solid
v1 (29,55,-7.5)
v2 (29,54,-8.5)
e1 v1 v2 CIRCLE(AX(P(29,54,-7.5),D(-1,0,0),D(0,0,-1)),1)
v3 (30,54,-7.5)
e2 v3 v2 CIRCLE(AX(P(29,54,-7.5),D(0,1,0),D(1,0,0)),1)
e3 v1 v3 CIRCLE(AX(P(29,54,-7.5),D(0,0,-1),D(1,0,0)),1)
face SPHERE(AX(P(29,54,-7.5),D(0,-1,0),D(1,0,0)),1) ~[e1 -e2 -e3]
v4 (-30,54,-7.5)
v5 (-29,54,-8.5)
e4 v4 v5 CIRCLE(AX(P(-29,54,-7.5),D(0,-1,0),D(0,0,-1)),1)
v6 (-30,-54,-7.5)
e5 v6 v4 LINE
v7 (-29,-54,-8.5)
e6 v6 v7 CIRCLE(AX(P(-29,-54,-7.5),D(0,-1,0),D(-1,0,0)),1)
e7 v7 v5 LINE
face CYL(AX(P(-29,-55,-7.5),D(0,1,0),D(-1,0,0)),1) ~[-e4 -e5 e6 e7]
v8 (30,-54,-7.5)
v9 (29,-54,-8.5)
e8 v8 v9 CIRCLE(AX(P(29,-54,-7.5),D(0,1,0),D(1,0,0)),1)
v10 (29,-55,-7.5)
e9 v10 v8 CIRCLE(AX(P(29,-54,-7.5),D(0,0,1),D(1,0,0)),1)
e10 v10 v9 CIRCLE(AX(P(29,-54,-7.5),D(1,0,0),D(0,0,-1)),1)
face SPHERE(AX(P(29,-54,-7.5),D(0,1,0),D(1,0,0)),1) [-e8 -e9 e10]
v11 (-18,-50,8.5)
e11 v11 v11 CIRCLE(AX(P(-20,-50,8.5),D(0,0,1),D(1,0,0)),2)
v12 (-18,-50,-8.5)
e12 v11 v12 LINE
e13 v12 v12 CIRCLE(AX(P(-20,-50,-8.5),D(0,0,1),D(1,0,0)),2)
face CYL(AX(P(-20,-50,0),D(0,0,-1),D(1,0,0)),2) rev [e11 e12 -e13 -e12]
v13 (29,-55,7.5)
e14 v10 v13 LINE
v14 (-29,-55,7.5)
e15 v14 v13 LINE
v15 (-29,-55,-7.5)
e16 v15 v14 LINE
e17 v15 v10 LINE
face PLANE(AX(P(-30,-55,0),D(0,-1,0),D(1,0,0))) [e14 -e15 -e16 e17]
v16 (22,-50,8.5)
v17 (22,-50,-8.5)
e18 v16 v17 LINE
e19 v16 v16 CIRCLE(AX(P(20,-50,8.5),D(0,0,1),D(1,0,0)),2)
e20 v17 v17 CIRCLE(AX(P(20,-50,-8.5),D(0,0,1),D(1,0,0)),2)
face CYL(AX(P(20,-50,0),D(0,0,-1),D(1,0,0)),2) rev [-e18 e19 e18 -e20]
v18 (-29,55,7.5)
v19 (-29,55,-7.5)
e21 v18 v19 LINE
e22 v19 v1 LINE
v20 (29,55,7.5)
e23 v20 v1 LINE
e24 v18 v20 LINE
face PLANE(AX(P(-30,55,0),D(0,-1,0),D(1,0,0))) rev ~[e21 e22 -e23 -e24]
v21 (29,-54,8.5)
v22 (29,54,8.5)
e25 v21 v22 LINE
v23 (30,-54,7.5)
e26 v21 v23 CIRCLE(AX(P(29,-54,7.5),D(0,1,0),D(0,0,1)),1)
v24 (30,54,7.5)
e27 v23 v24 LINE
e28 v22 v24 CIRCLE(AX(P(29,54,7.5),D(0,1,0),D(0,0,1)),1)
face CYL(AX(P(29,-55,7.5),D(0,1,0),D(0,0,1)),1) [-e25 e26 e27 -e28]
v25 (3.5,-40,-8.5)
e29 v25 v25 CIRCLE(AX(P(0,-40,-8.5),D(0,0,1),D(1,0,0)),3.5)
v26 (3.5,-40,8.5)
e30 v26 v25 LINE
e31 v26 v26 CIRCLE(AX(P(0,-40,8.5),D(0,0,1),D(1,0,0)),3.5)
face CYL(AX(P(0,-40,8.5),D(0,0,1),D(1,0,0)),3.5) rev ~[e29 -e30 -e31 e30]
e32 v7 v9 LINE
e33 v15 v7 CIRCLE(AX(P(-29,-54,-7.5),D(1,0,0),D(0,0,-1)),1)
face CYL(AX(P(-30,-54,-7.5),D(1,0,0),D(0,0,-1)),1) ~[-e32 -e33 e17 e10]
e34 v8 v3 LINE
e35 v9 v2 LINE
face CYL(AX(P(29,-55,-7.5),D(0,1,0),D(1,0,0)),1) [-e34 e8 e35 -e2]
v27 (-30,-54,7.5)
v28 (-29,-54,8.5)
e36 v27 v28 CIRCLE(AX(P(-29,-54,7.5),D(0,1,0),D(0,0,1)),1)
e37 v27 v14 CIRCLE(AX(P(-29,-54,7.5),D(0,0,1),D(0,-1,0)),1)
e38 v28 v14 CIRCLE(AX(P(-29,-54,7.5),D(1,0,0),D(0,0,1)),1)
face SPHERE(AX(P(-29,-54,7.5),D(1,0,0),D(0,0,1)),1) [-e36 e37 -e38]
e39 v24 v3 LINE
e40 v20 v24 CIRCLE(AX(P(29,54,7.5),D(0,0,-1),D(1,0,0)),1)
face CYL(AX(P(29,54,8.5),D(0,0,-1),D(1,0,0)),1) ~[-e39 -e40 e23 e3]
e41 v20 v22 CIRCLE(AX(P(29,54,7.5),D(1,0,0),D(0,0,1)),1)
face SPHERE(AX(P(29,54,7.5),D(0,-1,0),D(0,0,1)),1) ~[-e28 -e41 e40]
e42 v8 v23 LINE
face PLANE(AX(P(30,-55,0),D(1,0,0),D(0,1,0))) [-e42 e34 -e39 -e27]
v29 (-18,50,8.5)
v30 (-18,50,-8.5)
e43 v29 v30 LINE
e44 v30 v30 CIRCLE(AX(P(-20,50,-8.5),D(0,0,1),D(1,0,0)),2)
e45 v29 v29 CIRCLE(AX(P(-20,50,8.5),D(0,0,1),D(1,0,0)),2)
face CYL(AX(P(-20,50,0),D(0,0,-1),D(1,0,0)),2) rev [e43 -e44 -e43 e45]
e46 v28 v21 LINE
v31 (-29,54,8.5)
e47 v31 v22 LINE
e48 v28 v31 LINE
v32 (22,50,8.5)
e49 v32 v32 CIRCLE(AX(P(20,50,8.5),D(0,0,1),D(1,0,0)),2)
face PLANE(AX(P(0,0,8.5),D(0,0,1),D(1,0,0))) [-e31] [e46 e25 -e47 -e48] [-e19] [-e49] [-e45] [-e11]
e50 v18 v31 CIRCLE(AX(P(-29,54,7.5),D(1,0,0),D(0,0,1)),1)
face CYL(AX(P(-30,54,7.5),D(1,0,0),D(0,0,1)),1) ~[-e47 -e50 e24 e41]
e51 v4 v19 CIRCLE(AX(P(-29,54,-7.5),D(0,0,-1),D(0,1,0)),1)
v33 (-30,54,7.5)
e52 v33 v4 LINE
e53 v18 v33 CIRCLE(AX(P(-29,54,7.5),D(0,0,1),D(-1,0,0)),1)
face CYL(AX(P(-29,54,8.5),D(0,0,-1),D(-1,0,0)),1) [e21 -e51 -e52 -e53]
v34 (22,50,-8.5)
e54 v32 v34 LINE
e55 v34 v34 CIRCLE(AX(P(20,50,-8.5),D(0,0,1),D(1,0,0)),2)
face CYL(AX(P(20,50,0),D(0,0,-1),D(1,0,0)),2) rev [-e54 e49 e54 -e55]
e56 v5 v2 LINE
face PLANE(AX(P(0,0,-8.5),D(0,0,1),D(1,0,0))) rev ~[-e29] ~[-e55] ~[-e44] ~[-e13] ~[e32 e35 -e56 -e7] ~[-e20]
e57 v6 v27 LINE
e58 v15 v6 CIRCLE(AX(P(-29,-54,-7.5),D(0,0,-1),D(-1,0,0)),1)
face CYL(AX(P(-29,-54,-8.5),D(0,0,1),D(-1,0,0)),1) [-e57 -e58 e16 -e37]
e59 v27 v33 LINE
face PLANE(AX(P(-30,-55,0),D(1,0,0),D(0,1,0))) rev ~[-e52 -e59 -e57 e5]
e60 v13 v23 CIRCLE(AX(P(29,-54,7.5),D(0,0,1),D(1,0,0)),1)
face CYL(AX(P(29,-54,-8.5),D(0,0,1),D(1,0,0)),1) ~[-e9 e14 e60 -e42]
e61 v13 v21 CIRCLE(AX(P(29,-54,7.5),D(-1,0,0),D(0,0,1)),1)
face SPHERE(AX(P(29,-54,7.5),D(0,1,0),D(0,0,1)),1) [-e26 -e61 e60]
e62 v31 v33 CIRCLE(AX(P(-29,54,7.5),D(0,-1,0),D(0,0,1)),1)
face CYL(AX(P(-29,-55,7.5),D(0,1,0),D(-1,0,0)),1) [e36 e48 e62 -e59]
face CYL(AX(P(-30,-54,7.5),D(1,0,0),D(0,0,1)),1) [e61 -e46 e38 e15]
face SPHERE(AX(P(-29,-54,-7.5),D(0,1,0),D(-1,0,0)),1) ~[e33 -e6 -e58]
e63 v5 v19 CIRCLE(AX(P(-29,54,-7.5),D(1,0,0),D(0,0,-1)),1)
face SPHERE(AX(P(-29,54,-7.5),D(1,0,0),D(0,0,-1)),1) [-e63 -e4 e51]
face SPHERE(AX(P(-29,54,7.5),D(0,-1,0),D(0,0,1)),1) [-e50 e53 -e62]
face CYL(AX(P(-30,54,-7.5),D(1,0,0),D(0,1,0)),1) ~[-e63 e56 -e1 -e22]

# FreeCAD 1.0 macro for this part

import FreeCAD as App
import Part
import Sketcher
from FreeCAD import Vector
Q = App.Units.Quantity


def edges_at(feature, points):
    """Names of the edges that pass closest to the given points."""
    edges = feature.Shape.Edges
    near = lambda p: min(range(len(edges)), key=lambda i: edges[i].distToShape(Part.Vertex(*p))[0])
    return sorted({f"Edge{near(p) + 1}" for p in points})

doc = App.newDocument("Part")
params = doc.addObject("Spreadsheet::Sheet", "Params")
for row, (alias, value) in enumerate([
    ("sketch1_diameter", "4 mm"),
    ("sketch1_width", "60 mm"),
    ("sketch1_height", "110 mm"),
    ("pad1_length", "17 mm"),
    ("fillet_radius", "1 mm"),
    ("sketch2_diameter", "7 mm"),
    ("pocket1_length", "25 mm"),
], start=1):
    params.set(f"A{row}", alias)
    params.set(f"B{row}", "=" + value)
    params.setAlias(f"B{row}", alias)

body = doc.addObject("PartDesign::Body", "Body")

sketch1 = body.newObject("Sketcher::SketchObject", "Sketch")
sketch1.AttachmentSupport = (doc.getObject("XY_Plane"), [""])
sketch1.MapMode = "FlatFace"
sketch1.addGeometry([
    Part.LineSegment(Vector(-30, 55, 0), Vector(-30, -55, 0)),
    Part.LineSegment(Vector(-30, -55, 0), Vector(30, -55, 0)),
    Part.LineSegment(Vector(30, -55, 0), Vector(30, 55, 0)),
    Part.LineSegment(Vector(30, 55, 0), Vector(-30, 55, 0)),
    Part.Circle(Vector(-20, -50, 0), Vector(0, 0, 1), 2),
    Part.Circle(Vector(20, -50, 0), Vector(0, 0, 1), 2),
    Part.Circle(Vector(-20, 50, 0), Vector(0, 0, 1), 2),
    Part.Circle(Vector(20, 50, 0), Vector(0, 0, 1), 2),
], False)
sketch1.addConstraint([
    Sketcher.Constraint("Coincident", 0, 2, 1, 1),
    Sketcher.Constraint("Coincident", 1, 2, 2, 1),
    Sketcher.Constraint("Coincident", 2, 2, 3, 1),
    Sketcher.Constraint("Coincident", 3, 2, 0, 1),
    Sketcher.Constraint("Vertical", 0),
    Sketcher.Constraint("Horizontal", 1),
    Sketcher.Constraint("Vertical", 2),
    Sketcher.Constraint("Horizontal", 3),
    Sketcher.Constraint("Equal", 4, 5),
    Sketcher.Constraint("Equal", 5, 6),
    Sketcher.Constraint("Equal", 6, 7),
    Sketcher.Constraint("Symmetric", 5, 3, 6, 3, -1, 1),
    Sketcher.Constraint("Symmetric", 4, 3, 7, 3, -1, 1),
    Sketcher.Constraint("Symmetric", 0, 2, 2, 2, -1, 1),
    Sketcher.Constraint("Symmetric", 4, 3, 5, 3, -2),
    Sketcher.Constraint("Diameter", 4, Q("4 mm")),
    Sketcher.Constraint("DistanceX", 1, 1, 1, 2, Q("60 mm")),
    Sketcher.Constraint("DistanceY", 0, 2, 0, 1, Q("110 mm")),
    Sketcher.Constraint("DistanceX", 4, 3, -1, 1, Q("20 mm")),
    Sketcher.Constraint("DistanceY", 4, 3, -1, 1, Q("50 mm")),
])
sketch1.setExpression("Constraints[15]", "Params.sketch1_diameter")
sketch1.setExpression("Constraints[16]", "Params.sketch1_width")
sketch1.setExpression("Constraints[17]", "Params.sketch1_height")
pad1 = body.newObject("PartDesign::Pad", "Pad")
pad1.Profile = sketch1
pad1.setExpression("Length", "Params.pad1_length")
pad1.Midplane = True
doc.recompute()

fillet = body.newObject("PartDesign::Fillet", "Fillet")
fillet.Base = (pad1, edges_at(pad1, [
    (30, 0, 8.5),
    (0, -55, 8.5),
    (-30, 0, 8.5),
    (0, 55, 8.5),
    (30, 0, -8.5),
    (30, -55, 0),
    (30, 55, 0),
    (0, 55, -8.5),
    (-30, 0, -8.5),
    (-30, 55, 0),
    (-30, -55, 0),
    (0, -55, -8.5),
]))
fillet.setExpression("Radius", "Params.fillet_radius")

sketch2 = body.newObject("Sketcher::SketchObject", "Sketch001")
sketch2.AttachmentSupport = (doc.getObject("XY_Plane"), [""])
sketch2.MapMode = "FlatFace"
sketch2.AttachmentOffset = App.Placement(Vector(0, 0, 8.5), App.Rotation())
sketch2.addGeometry(Part.Circle(Vector(0, -40, 0), Vector(0, 0, 1), 3.5), False)
sketch2.addConstraint([
    Sketcher.Constraint("PointOnObject", 0, 3, -2),
    Sketcher.Constraint("Diameter", 0, Q("7 mm")),
    Sketcher.Constraint("DistanceY", 0, 3, -1, 1, Q("40 mm")),
])
sketch2.setExpression("Constraints[1]", "Params.sketch2_diameter")
pocket1 = body.newObject("PartDesign::Pocket", "Pocket")
pocket1.Profile = sketch2
pocket1.setExpression("Length", "Params.pocket1_length")

doc.recompute()
